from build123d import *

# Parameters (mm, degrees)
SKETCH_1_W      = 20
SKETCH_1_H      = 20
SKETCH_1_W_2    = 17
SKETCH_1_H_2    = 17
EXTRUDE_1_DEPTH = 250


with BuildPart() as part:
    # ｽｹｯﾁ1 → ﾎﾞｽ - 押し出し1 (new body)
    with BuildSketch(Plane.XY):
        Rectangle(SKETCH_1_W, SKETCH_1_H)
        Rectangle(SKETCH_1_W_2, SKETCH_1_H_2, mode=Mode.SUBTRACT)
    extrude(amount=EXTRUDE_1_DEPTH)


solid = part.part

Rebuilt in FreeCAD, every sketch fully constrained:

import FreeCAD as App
import Part
import Sketcher

doc = App.newDocument("Part")
body = doc.addObject("PartDesign::Body", "Body")

# Sketch on XY plane
sketch1 = doc.addObject("Sketcher::SketchObject", "Sketch")
body.addObject(sketch1)
sketch1.AttachmentSupport = (doc.XY_Plane, [""])
sketch1.MapMode = "FlatFace"
sketch1.addGeometry([
    Part.LineSegment(App.Vector(-10, 10, 0), App.Vector(-10, -10, 0)),  # 0
    Part.LineSegment(App.Vector(-10, -10, 0), App.Vector(10, -10, 0)),  # 1
    Part.LineSegment(App.Vector(10, -10, 0), App.Vector(10, 10, 0)),  # 2
    Part.LineSegment(App.Vector(10, 10, 0), App.Vector(-10, 10, 0)),  # 3
    Part.LineSegment(App.Vector(8, -8, 0), App.Vector(-8, -8, 0)),  # 4
    Part.LineSegment(App.Vector(-8, -8, 0), App.Vector(-8, 8, 0)),  # 5
    Part.LineSegment(App.Vector(-8, 8, 0), App.Vector(8, 8, 0)),  # 6
    Part.LineSegment(App.Vector(8, 8, 0), App.Vector(8, -8, 0)),  # 7
], False)
sketch1.addConstraint([
    Sketcher.Constraint("Coincident", 0, 2, 1, 1),
    Sketcher.Constraint("Coincident", 1, 2, 2, 1),
    Sketcher.Constraint("Coincident", 2, 2, 3, 1),
    Sketcher.Constraint("Coincident", 3, 2, 0, 1),
    Sketcher.Constraint("Coincident", 4, 2, 5, 1),
    Sketcher.Constraint("Coincident", 5, 2, 6, 1),
    Sketcher.Constraint("Coincident", 6, 2, 7, 1),
    Sketcher.Constraint("Coincident", 7, 2, 4, 1),
    Sketcher.Constraint("Vertical", 0),
    Sketcher.Constraint("Horizontal", 1),
    Sketcher.Constraint("Vertical", 2),
    Sketcher.Constraint("Horizontal", 3),
    Sketcher.Constraint("Horizontal", 4),
    Sketcher.Constraint("Vertical", 5),
    Sketcher.Constraint("Horizontal", 6),
    Sketcher.Constraint("Vertical", 7),
    Sketcher.Constraint("Symmetric", 0, 2, 2, 2, -1, 1),
    Sketcher.Constraint("Symmetric", 4, 2, 6, 2, -1, 1),
    Sketcher.Constraint("Equal", 3, 0),
    Sketcher.Constraint("Equal", 6, 5),
    Sketcher.Constraint("DistanceX", 1, 1, 1, 2, 20.0),
    Sketcher.Constraint("DistanceX", 4, 2, 4, 1, 17.0),
])
pad1 = doc.addObject("PartDesign::Pad", "Pad")
body.addObject(pad1)
pad1.Profile = sketch1
pad1.Length = 250

doc.recompute()
